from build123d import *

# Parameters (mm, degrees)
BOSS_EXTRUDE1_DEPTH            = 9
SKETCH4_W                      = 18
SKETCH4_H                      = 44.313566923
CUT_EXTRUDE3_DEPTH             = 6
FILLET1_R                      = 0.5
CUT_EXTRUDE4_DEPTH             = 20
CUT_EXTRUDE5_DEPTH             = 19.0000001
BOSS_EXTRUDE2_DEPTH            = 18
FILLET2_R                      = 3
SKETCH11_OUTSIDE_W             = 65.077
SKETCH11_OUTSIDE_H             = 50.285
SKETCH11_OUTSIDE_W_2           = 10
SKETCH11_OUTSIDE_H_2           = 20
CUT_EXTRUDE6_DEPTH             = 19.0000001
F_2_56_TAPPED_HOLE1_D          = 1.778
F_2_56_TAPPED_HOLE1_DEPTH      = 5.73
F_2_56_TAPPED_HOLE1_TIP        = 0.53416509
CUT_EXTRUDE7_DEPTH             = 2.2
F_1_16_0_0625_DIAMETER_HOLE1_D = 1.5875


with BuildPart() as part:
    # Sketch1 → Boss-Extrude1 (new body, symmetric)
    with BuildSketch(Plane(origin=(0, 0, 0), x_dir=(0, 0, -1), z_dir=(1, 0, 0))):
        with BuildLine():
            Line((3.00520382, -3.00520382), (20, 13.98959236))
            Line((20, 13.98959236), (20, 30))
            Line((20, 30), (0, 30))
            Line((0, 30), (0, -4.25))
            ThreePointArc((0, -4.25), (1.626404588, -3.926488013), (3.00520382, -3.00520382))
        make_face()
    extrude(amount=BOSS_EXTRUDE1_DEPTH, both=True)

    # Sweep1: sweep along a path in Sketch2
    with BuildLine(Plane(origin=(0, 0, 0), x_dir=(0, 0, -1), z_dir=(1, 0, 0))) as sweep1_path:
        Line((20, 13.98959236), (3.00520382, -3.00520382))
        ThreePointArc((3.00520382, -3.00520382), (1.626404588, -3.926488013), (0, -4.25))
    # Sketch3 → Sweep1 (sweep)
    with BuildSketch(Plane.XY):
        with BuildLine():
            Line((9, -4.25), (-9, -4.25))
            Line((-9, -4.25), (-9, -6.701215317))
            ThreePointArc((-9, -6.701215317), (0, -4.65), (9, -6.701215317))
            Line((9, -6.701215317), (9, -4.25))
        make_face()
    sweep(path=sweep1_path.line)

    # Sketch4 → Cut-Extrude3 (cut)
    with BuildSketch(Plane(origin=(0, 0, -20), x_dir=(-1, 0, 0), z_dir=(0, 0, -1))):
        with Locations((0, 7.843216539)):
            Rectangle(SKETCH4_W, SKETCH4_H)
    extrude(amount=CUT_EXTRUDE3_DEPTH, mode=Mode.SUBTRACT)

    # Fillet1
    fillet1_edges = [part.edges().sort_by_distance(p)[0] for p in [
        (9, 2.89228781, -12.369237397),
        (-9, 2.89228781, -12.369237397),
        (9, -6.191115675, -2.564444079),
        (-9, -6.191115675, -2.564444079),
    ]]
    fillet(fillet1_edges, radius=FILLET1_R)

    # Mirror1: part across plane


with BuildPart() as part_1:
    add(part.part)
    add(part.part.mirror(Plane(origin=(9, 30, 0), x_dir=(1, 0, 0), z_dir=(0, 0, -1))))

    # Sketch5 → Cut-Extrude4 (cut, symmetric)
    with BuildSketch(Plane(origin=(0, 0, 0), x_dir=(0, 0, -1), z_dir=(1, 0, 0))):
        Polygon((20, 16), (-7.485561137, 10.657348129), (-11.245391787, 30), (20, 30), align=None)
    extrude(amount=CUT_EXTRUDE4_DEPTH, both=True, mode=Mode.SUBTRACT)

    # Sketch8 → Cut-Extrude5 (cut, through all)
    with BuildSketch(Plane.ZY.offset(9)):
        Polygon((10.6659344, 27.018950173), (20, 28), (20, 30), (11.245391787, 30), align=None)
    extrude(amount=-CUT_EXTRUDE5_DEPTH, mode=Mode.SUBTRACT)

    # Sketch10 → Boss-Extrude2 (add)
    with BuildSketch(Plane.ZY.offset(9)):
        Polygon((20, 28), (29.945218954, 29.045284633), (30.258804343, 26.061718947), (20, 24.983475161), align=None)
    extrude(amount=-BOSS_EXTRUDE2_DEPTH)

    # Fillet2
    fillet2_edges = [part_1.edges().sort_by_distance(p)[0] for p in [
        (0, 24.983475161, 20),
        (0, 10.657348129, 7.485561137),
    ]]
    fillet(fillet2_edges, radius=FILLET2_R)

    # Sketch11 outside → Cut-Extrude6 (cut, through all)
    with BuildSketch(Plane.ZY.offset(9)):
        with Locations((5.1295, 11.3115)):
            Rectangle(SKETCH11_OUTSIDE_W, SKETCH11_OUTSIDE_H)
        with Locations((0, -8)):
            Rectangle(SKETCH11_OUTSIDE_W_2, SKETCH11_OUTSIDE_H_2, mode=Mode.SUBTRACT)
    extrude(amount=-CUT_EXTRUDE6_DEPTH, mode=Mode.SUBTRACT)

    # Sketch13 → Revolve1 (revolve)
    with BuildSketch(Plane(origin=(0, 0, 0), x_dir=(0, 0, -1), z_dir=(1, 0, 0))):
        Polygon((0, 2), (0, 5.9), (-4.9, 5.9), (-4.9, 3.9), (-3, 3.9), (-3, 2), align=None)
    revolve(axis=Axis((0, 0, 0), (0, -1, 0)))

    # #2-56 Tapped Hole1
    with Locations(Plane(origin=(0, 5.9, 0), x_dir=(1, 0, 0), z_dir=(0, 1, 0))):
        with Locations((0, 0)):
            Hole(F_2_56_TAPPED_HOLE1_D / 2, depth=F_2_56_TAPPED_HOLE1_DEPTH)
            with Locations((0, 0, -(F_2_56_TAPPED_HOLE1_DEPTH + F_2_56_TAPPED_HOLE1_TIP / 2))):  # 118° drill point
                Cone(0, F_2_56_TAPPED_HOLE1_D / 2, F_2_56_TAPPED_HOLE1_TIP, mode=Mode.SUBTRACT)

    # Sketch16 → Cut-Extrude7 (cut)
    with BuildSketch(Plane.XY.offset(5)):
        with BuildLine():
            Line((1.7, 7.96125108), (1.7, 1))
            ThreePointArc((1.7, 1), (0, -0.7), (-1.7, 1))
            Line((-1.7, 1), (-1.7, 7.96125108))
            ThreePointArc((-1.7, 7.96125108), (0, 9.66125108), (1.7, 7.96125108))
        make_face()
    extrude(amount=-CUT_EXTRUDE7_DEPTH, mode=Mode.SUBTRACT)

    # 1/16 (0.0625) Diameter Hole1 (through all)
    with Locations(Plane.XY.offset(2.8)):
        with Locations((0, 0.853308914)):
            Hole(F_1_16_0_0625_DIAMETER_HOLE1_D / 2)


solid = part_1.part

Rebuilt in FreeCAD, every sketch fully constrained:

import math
import FreeCAD as App
import Part
import Sketcher
Q = App.Units.Quantity


def edges_at(feature, points):
    """Names of the edges that pass closest to the given points."""
    edges = feature.Shape.Edges
    near = lambda p: min(range(len(edges)), key=lambda i: edges[i].distToShape(Part.Vertex(*p))[0])
    return sorted({f"Edge{near(p) + 1}" for p in points})

doc = App.newDocument("Part")
body = doc.addObject("PartDesign::Body", "Body")

sketch1 = body.newObject("Sketcher::SketchObject", "Sketch")
sketch1.AttachmentSupport = (doc.getObject("YZ_Plane"), [""])
sketch1.MapMode = "FlatFace"
sketch1.addGeometry(Part.LineSegment(App.Vector(-3, -3, 0), App.Vector(14, -20, 0)), False)
sketch1.addGeometry(Part.LineSegment(App.Vector(14, -20, 0), App.Vector(30, -20, 0)), False)
sketch1.addGeometry(Part.LineSegment(App.Vector(30, -20, 0), App.Vector(30, 0, 0)), False)
sketch1.addGeometry(Part.LineSegment(App.Vector(30, 0, 0), App.Vector(-4.2, 0, 0)), False)
sketch1.addGeometry(Part.ArcOfCircle(Part.Circle(App.Vector(0, 0, 0), App.Vector(0, 0, 1), 4.2), math.radians(180), math.radians(225)), False)
sketch1.addConstraint(Sketcher.Constraint("Coincident", 0, 2, 1, 1))
sketch1.addConstraint(Sketcher.Constraint("Coincident", 1, 2, 2, 1))
sketch1.addConstraint(Sketcher.Constraint("Coincident", 2, 2, 3, 1))
sketch1.addConstraint(Sketcher.Constraint("Coincident", 3, 2, 4, 1))
sketch1.addConstraint(Sketcher.Constraint("Tangent", 4, 2, 0, 1))
sketch1.addConstraint(Sketcher.Constraint("Horizontal", 1))
sketch1.addConstraint(Sketcher.Constraint("Vertical", 2))
sketch1.addConstraint(Sketcher.Constraint("Horizontal", 3))
sketch1.addConstraint(Sketcher.Constraint("Coincident", 4, 3, -1, 1))
sketch1.addConstraint(Sketcher.Constraint("PointOnObject", 2, 2, -1))
sketch1.addConstraint(Sketcher.Constraint("DistanceY", 2, 1, 2, 2, 20.0))
sketch1.addConstraint(Sketcher.Constraint("Angle", 0, Q("-45 deg")))
sketch1.addConstraint(Sketcher.Constraint("Radius", 4, 4.25))
sketch1.addConstraint(Sketcher.Constraint("DistanceX", -1, 1, 1, 2, 30.0))
pad1 = body.newObject("PartDesign::Pad", "Pad")
pad1.Profile = sketch1
pad1.Length = 18
pad1.Midplane = True

sketch2 = body.newObject("Sketcher::SketchObject", "Sketch001")
sketch2.AttachmentSupport = (doc.getObject("XY_Plane"), [""])
sketch2.MapMode = "FlatFace"
sketch2.addGeometry(Part.LineSegment(App.Vector(9, -4.2, 0), App.Vector(-9, -4.2, 0)), False)
sketch2.addGeometry(Part.LineSegment(App.Vector(-9, -4.2, 0), App.Vector(-9, -6.7, 0)), False)
sketch2.addGeometry(Part.ArcOfCircle(Part.Circle(App.Vector(0, -25.4, 0), App.Vector(0, 0, 1), 20.8), math.radians(64), math.radians(116)), False)
sketch2.addGeometry(Part.LineSegment(App.Vector(9, -6.7, 0), App.Vector(9, -4.2, 0)), False)
sketch2.addConstraint(Sketcher.Constraint("Coincident", 0, 2, 1, 1))
sketch2.addConstraint(Sketcher.Constraint("Coincident", 1, 2, 2, 2))
sketch2.addConstraint(Sketcher.Constraint("Coincident", 2, 1, 3, 1))
sketch2.addConstraint(Sketcher.Constraint("Coincident", 3, 2, 0, 1))
sketch2.addConstraint(Sketcher.Constraint("Horizontal", 0))
sketch2.addConstraint(Sketcher.Constraint("Vertical", 1))
sketch2.addConstraint(Sketcher.Constraint("Vertical", 3))
sketch2.addConstraint(Sketcher.Constraint("Symmetric", 1, 2, 2, 1, -2))
sketch2.addConstraint(Sketcher.Constraint("DistanceX", 0, 2, 0, 1, 18.0))
sketch2.addConstraint(Sketcher.Constraint("Radius", 2, 20.77))
sketch2.addConstraint(Sketcher.Constraint("DistanceY", 2, 3, -1, 1, 25.42))
sketch2.addConstraint(Sketcher.Constraint("DistanceY", 0, 2, -1, 1, 4.25))

sketch3 = body.newObject("Sketcher::SketchObject", "Sketch002")
sketch3.AttachmentSupport = (doc.getObject("YZ_Plane"), [""])
sketch3.MapMode = "FlatFace"
sketch3.addGeometry(Part.LineSegment(App.Vector(14, -20, 0), App.Vector(-3, -3, 0)), False)
sketch3.addGeometry(Part.ArcOfCircle(Part.Circle(App.Vector(0, 0, 0), App.Vector(0, 0, 1), 4.2), math.radians(180), math.radians(225)), False)
sketch3.addConstraint(Sketcher.Constraint("Tangent", 0, 2, 1, 2))
sketch3.addConstraint(Sketcher.Constraint("Coincident", 1, 3, -1, 1))
sketch3.addConstraint(Sketcher.Constraint("PointOnObject", 1, 1, -1))
sketch3.addConstraint(Sketcher.Constraint("Angle", 0, Q("135 deg")))
sketch3.addConstraint(Sketcher.Constraint("Radius", 1, 4.25))
sketch3.addConstraint(Sketcher.Constraint("DistanceY", 0, 1, -1, 1, 20.0))
doc.recompute()

additivepipe = body.newObject("PartDesign::AdditivePipe", "AdditivePipe")
additivepipe.Profile = sketch2
additivepipe.Spine = (sketch3, ["Edge1", "Edge2"])

sketch4 = body.newObject("Sketcher::SketchObject", "Sketch003")
sketch4.AttachmentSupport = (doc.getObject("XY_Plane"), [""])
sketch4.MapMode = "FlatFace"
sketch4.AttachmentOffset = App.Placement(App.Vector(0, 0, -20), App.Rotation())
sketch4.addGeometry(Part.LineSegment(App.Vector(9, 30, 0), App.Vector(9, -14, 0)), False)
sketch4.addGeometry(Part.LineSegment(App.Vector(9, -14, 0), App.Vector(-9, -14, 0)), False)
sketch4.addGeometry(Part.LineSegment(App.Vector(-9, -14, 0), App.Vector(-9, 30, 0)), False)
sketch4.addGeometry(Part.LineSegment(App.Vector(-9, 30, 0), App.Vector(9, 30, 0)), False)
sketch4.addConstraint(Sketcher.Constraint("Coincident", 0, 2, 1, 1))
sketch4.addConstraint(Sketcher.Constraint("Coincident", 1, 2, 2, 1))
sketch4.addConstraint(Sketcher.Constraint("Coincident", 2, 2, 3, 1))
sketch4.addConstraint(Sketcher.Constraint("Coincident", 3, 2, 0, 1))
sketch4.addConstraint(Sketcher.Constraint("Vertical", 0))
sketch4.addConstraint(Sketcher.Constraint("Horizontal", 1))
sketch4.addConstraint(Sketcher.Constraint("Vertical", 2))
sketch4.addConstraint(Sketcher.Constraint("Horizontal", 3))
sketch4.addConstraint(Sketcher.Constraint("DistanceX", 1, 2, 1, 1, 18.0))
sketch4.addConstraint(Sketcher.Constraint("DistanceX", -1, 1, 0, 2, 9.0))
sketch4.addConstraint(Sketcher.Constraint("DistanceY", -1, 1, 2, 2, 30.0))
sketch4.addConstraint(Sketcher.Constraint("DistanceY", 0, 2, 0, 1, 44.313567))
pocket1 = body.newObject("PartDesign::Pocket", "Pocket")
pocket1.Profile = sketch4
pocket1.Length = 6
doc.recompute()

fillet = body.newObject("PartDesign::Fillet", "Fillet")
fillet.Base = (pocket1, edges_at(pocket1, [
    (9, 2.892, -12.369),
    (-9, 2.892, -12.369),
    (9, -6.191, -2.564),
    (-9, -6.191, -2.564),
]))
fillet.Radius = 0.5
body2 = doc.addObject("PartDesign::Body", "Body001")
doc.recompute()

body2.BaseFeature = body
doc.recompute()

mirroring = doc.addObject("Part::Mirroring", "Mirroring")
mirroring.Source = body
mirroring.Base = App.Vector(9, 30, 0)
mirroring.Normal = App.Vector(0, 0, -1)
body3 = doc.addObject("PartDesign::Body", "Body002")
body3.BaseFeature = mirroring
boolean = body2.newObject("PartDesign::Boolean", "Boolean")
boolean.Type = "Fuse"
boolean.addObjects([body3])
doc.recompute()

sketch5 = body2.newObject("Sketcher::SketchObject", "Sketch004")
sketch5.AttachmentSupport = (doc.getObject("YZ_Plane001"), [""])
sketch5.MapMode = "FlatFace"
sketch5.addGeometry(Part.LineSegment(App.Vector(11, 7, 0), App.Vector(16, -20, 0)), False)
sketch5.addGeometry(Part.LineSegment(App.Vector(16, -20, 0), App.Vector(30, -20, 0)), False)
sketch5.addGeometry(Part.LineSegment(App.Vector(30, -20, 0), App.Vector(30, 11, 0)), False)
sketch5.addGeometry(Part.LineSegment(App.Vector(30, 11, 0), App.Vector(11, 7, 0)), False)
sketch5.addConstraint(Sketcher.Constraint("Coincident", 0, 2, 1, 1))
sketch5.addConstraint(Sketcher.Constraint("Coincident", 1, 2, 2, 1))
sketch5.addConstraint(Sketcher.Constraint("Coincident", 2, 2, 3, 1))
sketch5.addConstraint(Sketcher.Constraint("Coincident", 3, 2, 0, 1))
sketch5.addConstraint(Sketcher.Constraint("Horizontal", 1))
sketch5.addConstraint(Sketcher.Constraint("Vertical", 2))
sketch5.addConstraint(Sketcher.Constraint("Perpendicular", 0, 3))
sketch5.addConstraint(Sketcher.Constraint("DistanceX", 1, 1, 1, 2, 14.0))
sketch5.addConstraint(Sketcher.Constraint("Angle", 0, Q("-79 deg")))
sketch5.addConstraint(Sketcher.Constraint("Distance", 0, 28.0))
sketch5.addConstraint(Sketcher.Constraint("DistanceX", -1, 1, 0, 2, 16.0))
sketch5.addConstraint(Sketcher.Constraint("DistanceY", 0, 2, -1, 1, 20.0))
pocket2 = body2.newObject("PartDesign::Pocket", "Pocket001")
pocket2.Profile = sketch5
pocket2.Length = 40
pocket2.Midplane = True

sketch6 = body2.newObject("Sketcher::SketchObject", "Sketch005")
sketch6.AttachmentSupport = (doc.getObject("YZ_Plane001"), [""])
sketch6.MapMode = "FlatFace"
sketch6.AttachmentOffset = App.Placement(App.Vector(0, 0, -9), App.Rotation())
sketch6.addGeometry(Part.LineSegment(App.Vector(27, 10.7, 0), App.Vector(28, 20, 0)), False)
sketch6.addGeometry(Part.LineSegment(App.Vector(28, 20, 0), App.Vector(30, 20, 0)), False)
sketch6.addGeometry(Part.LineSegment(App.Vector(30, 20, 0), App.Vector(30, 11.2, 0)), False)
sketch6.addGeometry(Part.LineSegment(App.Vector(30, 11.2, 0), App.Vector(27, 10.7, 0)), False)
sketch6.addConstraint(Sketcher.Constraint("Coincident", 0, 2, 1, 1))
sketch6.addConstraint(Sketcher.Constraint("Coincident", 1, 2, 2, 1))
sketch6.addConstraint(Sketcher.Constraint("Coincident", 2, 2, 3, 1))
sketch6.addConstraint(Sketcher.Constraint("Coincident", 3, 2, 0, 1))
sketch6.addConstraint(Sketcher.Constraint("Horizontal", 1))
sketch6.addConstraint(Sketcher.Constraint("Vertical", 2))
sketch6.addConstraint(Sketcher.Constraint("DistanceX", 1, 1, 1, 2, 2.0))
sketch6.addConstraint(Sketcher.Constraint("Angle", 0, Q("84 deg")))
sketch6.addConstraint(Sketcher.Constraint("Angle", 3, Q("-169 deg")))
sketch6.addConstraint(Sketcher.Constraint("DistanceX", -1, 1, 0, 2, 28.0))
sketch6.addConstraint(Sketcher.Constraint("DistanceY", -1, 1, 0, 2, 20.0))
sketch6.addConstraint(Sketcher.Constraint("DistanceY", 2, 2, 2, 1, 8.754608))
pocket3 = body2.newObject("PartDesign::Pocket", "Pocket002")
pocket3.Profile = sketch6
pocket3.Type = "ThroughAll"
pocket3.Reversed = True

sketch7 = body2.newObject("Sketcher::SketchObject", "Sketch006")
sketch7.AttachmentSupport = (doc.getObject("YZ_Plane001"), [""])
sketch7.MapMode = "FlatFace"
sketch7.AttachmentOffset = App.Placement(App.Vector(0, 0, -9), App.Rotation())
sketch7.addGeometry(Part.LineSegment(App.Vector(29, 29.9, 0), App.Vector(28, 20, 0)), False)
sketch7.addGeometry(Part.LineSegment(App.Vector(28, 20, 0), App.Vector(25, 20, 0)), False)
sketch7.addGeometry(Part.LineSegment(App.Vector(25, 20, 0), App.Vector(26.1, 30.3, 0)), False)
sketch7.addGeometry(Part.LineSegment(App.Vector(26.1, 30.3, 0), App.Vector(29, 29.9, 0)), False)
sketch7.addConstraint(Sketcher.Constraint("Coincident", 0, 2, 1, 1))
sketch7.addConstraint(Sketcher.Constraint("Coincident", 1, 2, 2, 1))
sketch7.addConstraint(Sketcher.Constraint("Coincident", 2, 2, 3, 1))
sketch7.addConstraint(Sketcher.Constraint("Coincident", 3, 2, 0, 1))
sketch7.addConstraint(Sketcher.Constraint("Horizontal", 1))
sketch7.addConstraint(Sketcher.Constraint("Parallel", 0, 2))
sketch7.addConstraint(Sketcher.Constraint("Perpendicular", 2, 3))
sketch7.addConstraint(Sketcher.Constraint("Angle", 0, Q("-96 deg")))
sketch7.addConstraint(Sketcher.Constraint("Distance", 0, 10.0))
sketch7.addConstraint(Sketcher.Constraint("Distance", 3, 3.0))
sketch7.addConstraint(Sketcher.Constraint("DistanceX", -1, 1, 0, 2, 28.0))
sketch7.addConstraint(Sketcher.Constraint("DistanceY", -1, 1, 0, 2, 20.0))
pad2 = body2.newObject("PartDesign::Pad", "Pad001")
pad2.Profile = sketch7
pad2.Length = 18
doc.recompute()

fillet2 = body2.newObject("PartDesign::Fillet", "Fillet001")
fillet2.Base = (pad2, edges_at(pad2, [(0, 24.983, 20), (0, 10.657, 7.486)]))
fillet2.Radius = 3

sketch8 = body2.newObject("Sketcher::SketchObject", "Sketch007")
sketch8.AttachmentSupport = (doc.getObject("YZ_Plane001"), [""])
sketch8.MapMode = "FlatFace"
sketch8.AttachmentOffset = App.Placement(App.Vector(0, 0, -9), App.Rotation())
sketch8.addGeometry(Part.LineSegment(App.Vector(36, -27, 0), App.Vector(-14, -27, 0)), False)
sketch8.addGeometry(Part.LineSegment(App.Vector(-14, -27, 0), App.Vector(-14, -5, 0)), False)
sketch8.addGeometry(Part.LineSegment(App.Vector(-14, -5, 0), App.Vector(2, -5, 0)), False)
sketch8.addGeometry(Part.LineSegment(App.Vector(2, -5, 0), App.Vector(2, 5, 0)), False)
sketch8.addGeometry(Part.LineSegment(App.Vector(2, 5, 0), App.Vector(-14, 5, 0)), False)
sketch8.addGeometry(Part.LineSegment(App.Vector(-14, 5, 0), App.Vector(-14, 38, 0)), False)
sketch8.addGeometry(Part.LineSegment(App.Vector(-14, 38, 0), App.Vector(36, 38, 0)), False)
sketch8.addGeometry(Part.LineSegment(App.Vector(36, 38, 0), App.Vector(36, -27, 0)), False)
sketch8.addConstraint(Sketcher.Constraint("Coincident", 0, 2, 1, 1))
sketch8.addConstraint(Sketcher.Constraint("Coincident", 1, 2, 2, 1))
sketch8.addConstraint(Sketcher.Constraint("Coincident", 2, 2, 3, 1))
sketch8.addConstraint(Sketcher.Constraint("Coincident", 3, 2, 4, 1))
sketch8.addConstraint(Sketcher.Constraint("Coincident", 4, 2, 5, 1))
sketch8.addConstraint(Sketcher.Constraint("Coincident", 5, 2, 6, 1))
sketch8.addConstraint(Sketcher.Constraint("Coincident", 6, 2, 7, 1))
sketch8.addConstraint(Sketcher.Constraint("Coincident", 7, 2, 0, 1))
sketch8.addConstraint(Sketcher.Constraint("Horizontal", 0))
sketch8.addConstraint(Sketcher.Constraint("Vertical", 1))
sketch8.addConstraint(Sketcher.Constraint("Horizontal", 2))
sketch8.addConstraint(Sketcher.Constraint("Vertical", 3))
sketch8.addConstraint(Sketcher.Constraint("Horizontal", 4))
sketch8.addConstraint(Sketcher.Constraint("Vertical", 5))
sketch8.addConstraint(Sketcher.Constraint("Horizontal", 6))
sketch8.addConstraint(Sketcher.Constraint("Vertical", 7))
sketch8.addConstraint(Sketcher.Constraint("Symmetric", 1, 2, 4, 2, -1))
sketch8.addConstraint(Sketcher.Constraint("DistanceY", 3, 1, 3, 2, 10.0))
sketch8.addConstraint(Sketcher.Constraint("DistanceX", -1, 1, 2, 2, 2.0))
sketch8.addConstraint(Sketcher.Constraint("DistanceX", 0, 2, 0, 1, 50.285))
sketch8.addConstraint(Sketcher.Constraint("DistanceX", 2, 1, 2, 2, 15.831))
sketch8.addConstraint(Sketcher.Constraint("DistanceY", 1, 1, 1, 2, 22.409))
sketch8.addConstraint(Sketcher.Constraint("DistanceY", 5, 1, 5, 2, 32.668))
pocket4 = body2.newObject("PartDesign::Pocket", "Pocket003")
pocket4.Profile = sketch8
pocket4.Type = "ThroughAll"
pocket4.Reversed = True

sketch9 = body2.newObject("Sketcher::SketchObject", "Sketch008")
sketch9.AttachmentSupport = (doc.getObject("YZ_Plane001"), [""])
sketch9.MapMode = "FlatFace"
sketch9.addGeometry(Part.LineSegment(App.Vector(2, 0, 0), App.Vector(5.9, 0, 0)), False)
sketch9.addGeometry(Part.LineSegment(App.Vector(5.9, 0, 0), App.Vector(5.9, 4.9, 0)), False)
sketch9.addGeometry(Part.LineSegment(App.Vector(5.9, 4.9, 0), App.Vector(3.9, 4.9, 0)), False)
sketch9.addGeometry(Part.LineSegment(App.Vector(3.9, 4.9, 0), App.Vector(3.9, 3, 0)), False)
sketch9.addGeometry(Part.LineSegment(App.Vector(3.9, 3, 0), App.Vector(2, 3, 0)), False)
sketch9.addGeometry(Part.LineSegment(App.Vector(2, 3, 0), App.Vector(2, 0, 0)), False)
sketch9.addConstraint(Sketcher.Constraint("Coincident", 0, 2, 1, 1))
sketch9.addConstraint(Sketcher.Constraint("Coincident", 1, 2, 2, 1))
sketch9.addConstraint(Sketcher.Constraint("Coincident", 2, 2, 3, 1))
sketch9.addConstraint(Sketcher.Constraint("Coincident", 3, 2, 4, 1))
sketch9.addConstraint(Sketcher.Constraint("Coincident", 4, 2, 5, 1))
sketch9.addConstraint(Sketcher.Constraint("Coincident", 5, 2, 0, 1))
sketch9.addConstraint(Sketcher.Constraint("Horizontal", 0))
sketch9.addConstraint(Sketcher.Constraint("Vertical", 1))
sketch9.addConstraint(Sketcher.Constraint("Horizontal", 2))
sketch9.addConstraint(Sketcher.Constraint("Vertical", 3))
sketch9.addConstraint(Sketcher.Constraint("Horizontal", 4))
sketch9.addConstraint(Sketcher.Constraint("Vertical", 5))
sketch9.addConstraint(Sketcher.Constraint("PointOnObject", 0, 2, -1))
sketch9.addConstraint(Sketcher.Constraint("Equal", 4, 3))
sketch9.addConstraint(Sketcher.Constraint("DistanceX", 2, 2, 2, 1, 2.0))
sketch9.addConstraint(Sketcher.Constraint("DistanceY", 5, 2, 5, 1, 3.0))
sketch9.addConstraint(Sketcher.Constraint("DistanceX", 0, 1, 0, 2, 3.9))
sketch9.addConstraint(Sketcher.Constraint("DistanceX", -1, 1, 4, 2, 2.0))
revolution = body2.newObject("PartDesign::Revolution", "Revolution")
revolution.Profile = sketch9
revolution.ReferenceAxis = (sketch9, ["H_Axis"])
revolution.Angle = 360

sketch10 = body2.newObject("Sketcher::SketchObject", "Sketch009")
sketch10.AttachmentSupport = (doc.getObject("XZ_Plane001"), [""])
sketch10.MapMode = "FlatFace"
sketch10.AttachmentOffset = App.Placement(App.Vector(0, 0, -5.9), App.Rotation())
sketch10.addGeometry(Part.Circle(App.Vector(0, 0, 0), App.Vector(0, 0, 1), 0.9), False)
sketch10.addConstraint(Sketcher.Constraint("Coincident", 0, 3, -1, 1))
sketch10.addConstraint(Sketcher.Constraint("Diameter", 0, 1.778))
doc.recompute()
hole = body2.newObject("PartDesign::Hole", "Hole")
hole.Profile = sketch10
hole.ThreadType = "None"
hole.Diameter = 1.778
hole.DepthType = "Dimension"
hole.Depth = 5.73
hole.DrillPoint = "Angled"
hole.DrillPointAngle = 118
hole.Reversed = True

sketch11 = body2.newObject("Sketcher::SketchObject", "Sketch010")
sketch11.AttachmentSupport = (doc.getObject("XY_Plane001"), [""])
sketch11.MapMode = "FlatFace"
sketch11.AttachmentOffset = App.Placement(App.Vector(0, 0, 5), App.Rotation())
sketch11.addGeometry(Part.LineSegment(App.Vector(1.7, 1, 0), App.Vector(1.7, 8, 0)), False)
sketch11.addGeometry(Part.ArcOfCircle(Part.Circle(App.Vector(0, 8, 0), App.Vector(0, 0, 1), 1.7), math.radians(0), math.radians(180)), False)
sketch11.addGeometry(Part.LineSegment(App.Vector(-1.7, 8, 0), App.Vector(-1.7, 1, 0)), False)
sketch11.addGeometry(Part.ArcOfCircle(Part.Circle(App.Vector(0, 1, 0), App.Vector(0, 0, 1), 1.7), math.radians(180), math.radians(360)), False)
sketch11.addConstraint(Sketcher.Constraint("Tangent", 0, 2, 1, 1))
sketch11.addConstraint(Sketcher.Constraint("Tangent", 1, 2, 2, 1))
sketch11.addConstraint(Sketcher.Constraint("Tangent", 2, 2, 3, 1))
sketch11.addConstraint(Sketcher.Constraint("Tangent", 3, 2, 0, 1))
sketch11.addConstraint(Sketcher.Constraint("Vertical", 0))
sketch11.addConstraint(Sketcher.Constraint("Vertical", 2))
sketch11.addConstraint(Sketcher.Constraint("PointOnObject", 1, 3, -2))
sketch11.addConstraint(Sketcher.Constraint("Radius", 1, 1.7))
sketch11.addConstraint(Sketcher.Constraint("DistanceY", -1, 1, 3, 3, 1.0))
sketch11.addConstraint(Sketcher.Constraint("DistanceY", 0, 1, 0, 2, 6.961251))
pocket5 = body2.newObject("PartDesign::Pocket", "Pocket004")
pocket5.Profile = sketch11
pocket5.Length = 2.2

sketch12 = body2.newObject("Sketcher::SketchObject", "Sketch011")
sketch12.AttachmentSupport = (doc.getObject("XY_Plane001"), [""])
sketch12.MapMode = "FlatFace"
sketch12.AttachmentOffset = App.Placement(App.Vector(0, 0, 2.8), App.Rotation())
sketch12.addGeometry(Part.Circle(App.Vector(0, 0.9, 0), App.Vector(0, 0, 1), 0.8), False)
sketch12.addConstraint(Sketcher.Constraint("PointOnObject", 0, 3, -2))
sketch12.addConstraint(Sketcher.Constraint("Diameter", 0, 1.5875))
sketch12.addConstraint(Sketcher.Constraint("DistanceY", -1, 1, 0, 3, 0.853309))
doc.recompute()
hole2 = body2.newObject("PartDesign::Hole", "Hole001")
hole2.Profile = sketch12
hole2.ThreadType = "None"
hole2.Diameter = 1.5875
hole2.DepthType = "ThroughAll"
mirroring.Visibility = False

doc.recompute()
